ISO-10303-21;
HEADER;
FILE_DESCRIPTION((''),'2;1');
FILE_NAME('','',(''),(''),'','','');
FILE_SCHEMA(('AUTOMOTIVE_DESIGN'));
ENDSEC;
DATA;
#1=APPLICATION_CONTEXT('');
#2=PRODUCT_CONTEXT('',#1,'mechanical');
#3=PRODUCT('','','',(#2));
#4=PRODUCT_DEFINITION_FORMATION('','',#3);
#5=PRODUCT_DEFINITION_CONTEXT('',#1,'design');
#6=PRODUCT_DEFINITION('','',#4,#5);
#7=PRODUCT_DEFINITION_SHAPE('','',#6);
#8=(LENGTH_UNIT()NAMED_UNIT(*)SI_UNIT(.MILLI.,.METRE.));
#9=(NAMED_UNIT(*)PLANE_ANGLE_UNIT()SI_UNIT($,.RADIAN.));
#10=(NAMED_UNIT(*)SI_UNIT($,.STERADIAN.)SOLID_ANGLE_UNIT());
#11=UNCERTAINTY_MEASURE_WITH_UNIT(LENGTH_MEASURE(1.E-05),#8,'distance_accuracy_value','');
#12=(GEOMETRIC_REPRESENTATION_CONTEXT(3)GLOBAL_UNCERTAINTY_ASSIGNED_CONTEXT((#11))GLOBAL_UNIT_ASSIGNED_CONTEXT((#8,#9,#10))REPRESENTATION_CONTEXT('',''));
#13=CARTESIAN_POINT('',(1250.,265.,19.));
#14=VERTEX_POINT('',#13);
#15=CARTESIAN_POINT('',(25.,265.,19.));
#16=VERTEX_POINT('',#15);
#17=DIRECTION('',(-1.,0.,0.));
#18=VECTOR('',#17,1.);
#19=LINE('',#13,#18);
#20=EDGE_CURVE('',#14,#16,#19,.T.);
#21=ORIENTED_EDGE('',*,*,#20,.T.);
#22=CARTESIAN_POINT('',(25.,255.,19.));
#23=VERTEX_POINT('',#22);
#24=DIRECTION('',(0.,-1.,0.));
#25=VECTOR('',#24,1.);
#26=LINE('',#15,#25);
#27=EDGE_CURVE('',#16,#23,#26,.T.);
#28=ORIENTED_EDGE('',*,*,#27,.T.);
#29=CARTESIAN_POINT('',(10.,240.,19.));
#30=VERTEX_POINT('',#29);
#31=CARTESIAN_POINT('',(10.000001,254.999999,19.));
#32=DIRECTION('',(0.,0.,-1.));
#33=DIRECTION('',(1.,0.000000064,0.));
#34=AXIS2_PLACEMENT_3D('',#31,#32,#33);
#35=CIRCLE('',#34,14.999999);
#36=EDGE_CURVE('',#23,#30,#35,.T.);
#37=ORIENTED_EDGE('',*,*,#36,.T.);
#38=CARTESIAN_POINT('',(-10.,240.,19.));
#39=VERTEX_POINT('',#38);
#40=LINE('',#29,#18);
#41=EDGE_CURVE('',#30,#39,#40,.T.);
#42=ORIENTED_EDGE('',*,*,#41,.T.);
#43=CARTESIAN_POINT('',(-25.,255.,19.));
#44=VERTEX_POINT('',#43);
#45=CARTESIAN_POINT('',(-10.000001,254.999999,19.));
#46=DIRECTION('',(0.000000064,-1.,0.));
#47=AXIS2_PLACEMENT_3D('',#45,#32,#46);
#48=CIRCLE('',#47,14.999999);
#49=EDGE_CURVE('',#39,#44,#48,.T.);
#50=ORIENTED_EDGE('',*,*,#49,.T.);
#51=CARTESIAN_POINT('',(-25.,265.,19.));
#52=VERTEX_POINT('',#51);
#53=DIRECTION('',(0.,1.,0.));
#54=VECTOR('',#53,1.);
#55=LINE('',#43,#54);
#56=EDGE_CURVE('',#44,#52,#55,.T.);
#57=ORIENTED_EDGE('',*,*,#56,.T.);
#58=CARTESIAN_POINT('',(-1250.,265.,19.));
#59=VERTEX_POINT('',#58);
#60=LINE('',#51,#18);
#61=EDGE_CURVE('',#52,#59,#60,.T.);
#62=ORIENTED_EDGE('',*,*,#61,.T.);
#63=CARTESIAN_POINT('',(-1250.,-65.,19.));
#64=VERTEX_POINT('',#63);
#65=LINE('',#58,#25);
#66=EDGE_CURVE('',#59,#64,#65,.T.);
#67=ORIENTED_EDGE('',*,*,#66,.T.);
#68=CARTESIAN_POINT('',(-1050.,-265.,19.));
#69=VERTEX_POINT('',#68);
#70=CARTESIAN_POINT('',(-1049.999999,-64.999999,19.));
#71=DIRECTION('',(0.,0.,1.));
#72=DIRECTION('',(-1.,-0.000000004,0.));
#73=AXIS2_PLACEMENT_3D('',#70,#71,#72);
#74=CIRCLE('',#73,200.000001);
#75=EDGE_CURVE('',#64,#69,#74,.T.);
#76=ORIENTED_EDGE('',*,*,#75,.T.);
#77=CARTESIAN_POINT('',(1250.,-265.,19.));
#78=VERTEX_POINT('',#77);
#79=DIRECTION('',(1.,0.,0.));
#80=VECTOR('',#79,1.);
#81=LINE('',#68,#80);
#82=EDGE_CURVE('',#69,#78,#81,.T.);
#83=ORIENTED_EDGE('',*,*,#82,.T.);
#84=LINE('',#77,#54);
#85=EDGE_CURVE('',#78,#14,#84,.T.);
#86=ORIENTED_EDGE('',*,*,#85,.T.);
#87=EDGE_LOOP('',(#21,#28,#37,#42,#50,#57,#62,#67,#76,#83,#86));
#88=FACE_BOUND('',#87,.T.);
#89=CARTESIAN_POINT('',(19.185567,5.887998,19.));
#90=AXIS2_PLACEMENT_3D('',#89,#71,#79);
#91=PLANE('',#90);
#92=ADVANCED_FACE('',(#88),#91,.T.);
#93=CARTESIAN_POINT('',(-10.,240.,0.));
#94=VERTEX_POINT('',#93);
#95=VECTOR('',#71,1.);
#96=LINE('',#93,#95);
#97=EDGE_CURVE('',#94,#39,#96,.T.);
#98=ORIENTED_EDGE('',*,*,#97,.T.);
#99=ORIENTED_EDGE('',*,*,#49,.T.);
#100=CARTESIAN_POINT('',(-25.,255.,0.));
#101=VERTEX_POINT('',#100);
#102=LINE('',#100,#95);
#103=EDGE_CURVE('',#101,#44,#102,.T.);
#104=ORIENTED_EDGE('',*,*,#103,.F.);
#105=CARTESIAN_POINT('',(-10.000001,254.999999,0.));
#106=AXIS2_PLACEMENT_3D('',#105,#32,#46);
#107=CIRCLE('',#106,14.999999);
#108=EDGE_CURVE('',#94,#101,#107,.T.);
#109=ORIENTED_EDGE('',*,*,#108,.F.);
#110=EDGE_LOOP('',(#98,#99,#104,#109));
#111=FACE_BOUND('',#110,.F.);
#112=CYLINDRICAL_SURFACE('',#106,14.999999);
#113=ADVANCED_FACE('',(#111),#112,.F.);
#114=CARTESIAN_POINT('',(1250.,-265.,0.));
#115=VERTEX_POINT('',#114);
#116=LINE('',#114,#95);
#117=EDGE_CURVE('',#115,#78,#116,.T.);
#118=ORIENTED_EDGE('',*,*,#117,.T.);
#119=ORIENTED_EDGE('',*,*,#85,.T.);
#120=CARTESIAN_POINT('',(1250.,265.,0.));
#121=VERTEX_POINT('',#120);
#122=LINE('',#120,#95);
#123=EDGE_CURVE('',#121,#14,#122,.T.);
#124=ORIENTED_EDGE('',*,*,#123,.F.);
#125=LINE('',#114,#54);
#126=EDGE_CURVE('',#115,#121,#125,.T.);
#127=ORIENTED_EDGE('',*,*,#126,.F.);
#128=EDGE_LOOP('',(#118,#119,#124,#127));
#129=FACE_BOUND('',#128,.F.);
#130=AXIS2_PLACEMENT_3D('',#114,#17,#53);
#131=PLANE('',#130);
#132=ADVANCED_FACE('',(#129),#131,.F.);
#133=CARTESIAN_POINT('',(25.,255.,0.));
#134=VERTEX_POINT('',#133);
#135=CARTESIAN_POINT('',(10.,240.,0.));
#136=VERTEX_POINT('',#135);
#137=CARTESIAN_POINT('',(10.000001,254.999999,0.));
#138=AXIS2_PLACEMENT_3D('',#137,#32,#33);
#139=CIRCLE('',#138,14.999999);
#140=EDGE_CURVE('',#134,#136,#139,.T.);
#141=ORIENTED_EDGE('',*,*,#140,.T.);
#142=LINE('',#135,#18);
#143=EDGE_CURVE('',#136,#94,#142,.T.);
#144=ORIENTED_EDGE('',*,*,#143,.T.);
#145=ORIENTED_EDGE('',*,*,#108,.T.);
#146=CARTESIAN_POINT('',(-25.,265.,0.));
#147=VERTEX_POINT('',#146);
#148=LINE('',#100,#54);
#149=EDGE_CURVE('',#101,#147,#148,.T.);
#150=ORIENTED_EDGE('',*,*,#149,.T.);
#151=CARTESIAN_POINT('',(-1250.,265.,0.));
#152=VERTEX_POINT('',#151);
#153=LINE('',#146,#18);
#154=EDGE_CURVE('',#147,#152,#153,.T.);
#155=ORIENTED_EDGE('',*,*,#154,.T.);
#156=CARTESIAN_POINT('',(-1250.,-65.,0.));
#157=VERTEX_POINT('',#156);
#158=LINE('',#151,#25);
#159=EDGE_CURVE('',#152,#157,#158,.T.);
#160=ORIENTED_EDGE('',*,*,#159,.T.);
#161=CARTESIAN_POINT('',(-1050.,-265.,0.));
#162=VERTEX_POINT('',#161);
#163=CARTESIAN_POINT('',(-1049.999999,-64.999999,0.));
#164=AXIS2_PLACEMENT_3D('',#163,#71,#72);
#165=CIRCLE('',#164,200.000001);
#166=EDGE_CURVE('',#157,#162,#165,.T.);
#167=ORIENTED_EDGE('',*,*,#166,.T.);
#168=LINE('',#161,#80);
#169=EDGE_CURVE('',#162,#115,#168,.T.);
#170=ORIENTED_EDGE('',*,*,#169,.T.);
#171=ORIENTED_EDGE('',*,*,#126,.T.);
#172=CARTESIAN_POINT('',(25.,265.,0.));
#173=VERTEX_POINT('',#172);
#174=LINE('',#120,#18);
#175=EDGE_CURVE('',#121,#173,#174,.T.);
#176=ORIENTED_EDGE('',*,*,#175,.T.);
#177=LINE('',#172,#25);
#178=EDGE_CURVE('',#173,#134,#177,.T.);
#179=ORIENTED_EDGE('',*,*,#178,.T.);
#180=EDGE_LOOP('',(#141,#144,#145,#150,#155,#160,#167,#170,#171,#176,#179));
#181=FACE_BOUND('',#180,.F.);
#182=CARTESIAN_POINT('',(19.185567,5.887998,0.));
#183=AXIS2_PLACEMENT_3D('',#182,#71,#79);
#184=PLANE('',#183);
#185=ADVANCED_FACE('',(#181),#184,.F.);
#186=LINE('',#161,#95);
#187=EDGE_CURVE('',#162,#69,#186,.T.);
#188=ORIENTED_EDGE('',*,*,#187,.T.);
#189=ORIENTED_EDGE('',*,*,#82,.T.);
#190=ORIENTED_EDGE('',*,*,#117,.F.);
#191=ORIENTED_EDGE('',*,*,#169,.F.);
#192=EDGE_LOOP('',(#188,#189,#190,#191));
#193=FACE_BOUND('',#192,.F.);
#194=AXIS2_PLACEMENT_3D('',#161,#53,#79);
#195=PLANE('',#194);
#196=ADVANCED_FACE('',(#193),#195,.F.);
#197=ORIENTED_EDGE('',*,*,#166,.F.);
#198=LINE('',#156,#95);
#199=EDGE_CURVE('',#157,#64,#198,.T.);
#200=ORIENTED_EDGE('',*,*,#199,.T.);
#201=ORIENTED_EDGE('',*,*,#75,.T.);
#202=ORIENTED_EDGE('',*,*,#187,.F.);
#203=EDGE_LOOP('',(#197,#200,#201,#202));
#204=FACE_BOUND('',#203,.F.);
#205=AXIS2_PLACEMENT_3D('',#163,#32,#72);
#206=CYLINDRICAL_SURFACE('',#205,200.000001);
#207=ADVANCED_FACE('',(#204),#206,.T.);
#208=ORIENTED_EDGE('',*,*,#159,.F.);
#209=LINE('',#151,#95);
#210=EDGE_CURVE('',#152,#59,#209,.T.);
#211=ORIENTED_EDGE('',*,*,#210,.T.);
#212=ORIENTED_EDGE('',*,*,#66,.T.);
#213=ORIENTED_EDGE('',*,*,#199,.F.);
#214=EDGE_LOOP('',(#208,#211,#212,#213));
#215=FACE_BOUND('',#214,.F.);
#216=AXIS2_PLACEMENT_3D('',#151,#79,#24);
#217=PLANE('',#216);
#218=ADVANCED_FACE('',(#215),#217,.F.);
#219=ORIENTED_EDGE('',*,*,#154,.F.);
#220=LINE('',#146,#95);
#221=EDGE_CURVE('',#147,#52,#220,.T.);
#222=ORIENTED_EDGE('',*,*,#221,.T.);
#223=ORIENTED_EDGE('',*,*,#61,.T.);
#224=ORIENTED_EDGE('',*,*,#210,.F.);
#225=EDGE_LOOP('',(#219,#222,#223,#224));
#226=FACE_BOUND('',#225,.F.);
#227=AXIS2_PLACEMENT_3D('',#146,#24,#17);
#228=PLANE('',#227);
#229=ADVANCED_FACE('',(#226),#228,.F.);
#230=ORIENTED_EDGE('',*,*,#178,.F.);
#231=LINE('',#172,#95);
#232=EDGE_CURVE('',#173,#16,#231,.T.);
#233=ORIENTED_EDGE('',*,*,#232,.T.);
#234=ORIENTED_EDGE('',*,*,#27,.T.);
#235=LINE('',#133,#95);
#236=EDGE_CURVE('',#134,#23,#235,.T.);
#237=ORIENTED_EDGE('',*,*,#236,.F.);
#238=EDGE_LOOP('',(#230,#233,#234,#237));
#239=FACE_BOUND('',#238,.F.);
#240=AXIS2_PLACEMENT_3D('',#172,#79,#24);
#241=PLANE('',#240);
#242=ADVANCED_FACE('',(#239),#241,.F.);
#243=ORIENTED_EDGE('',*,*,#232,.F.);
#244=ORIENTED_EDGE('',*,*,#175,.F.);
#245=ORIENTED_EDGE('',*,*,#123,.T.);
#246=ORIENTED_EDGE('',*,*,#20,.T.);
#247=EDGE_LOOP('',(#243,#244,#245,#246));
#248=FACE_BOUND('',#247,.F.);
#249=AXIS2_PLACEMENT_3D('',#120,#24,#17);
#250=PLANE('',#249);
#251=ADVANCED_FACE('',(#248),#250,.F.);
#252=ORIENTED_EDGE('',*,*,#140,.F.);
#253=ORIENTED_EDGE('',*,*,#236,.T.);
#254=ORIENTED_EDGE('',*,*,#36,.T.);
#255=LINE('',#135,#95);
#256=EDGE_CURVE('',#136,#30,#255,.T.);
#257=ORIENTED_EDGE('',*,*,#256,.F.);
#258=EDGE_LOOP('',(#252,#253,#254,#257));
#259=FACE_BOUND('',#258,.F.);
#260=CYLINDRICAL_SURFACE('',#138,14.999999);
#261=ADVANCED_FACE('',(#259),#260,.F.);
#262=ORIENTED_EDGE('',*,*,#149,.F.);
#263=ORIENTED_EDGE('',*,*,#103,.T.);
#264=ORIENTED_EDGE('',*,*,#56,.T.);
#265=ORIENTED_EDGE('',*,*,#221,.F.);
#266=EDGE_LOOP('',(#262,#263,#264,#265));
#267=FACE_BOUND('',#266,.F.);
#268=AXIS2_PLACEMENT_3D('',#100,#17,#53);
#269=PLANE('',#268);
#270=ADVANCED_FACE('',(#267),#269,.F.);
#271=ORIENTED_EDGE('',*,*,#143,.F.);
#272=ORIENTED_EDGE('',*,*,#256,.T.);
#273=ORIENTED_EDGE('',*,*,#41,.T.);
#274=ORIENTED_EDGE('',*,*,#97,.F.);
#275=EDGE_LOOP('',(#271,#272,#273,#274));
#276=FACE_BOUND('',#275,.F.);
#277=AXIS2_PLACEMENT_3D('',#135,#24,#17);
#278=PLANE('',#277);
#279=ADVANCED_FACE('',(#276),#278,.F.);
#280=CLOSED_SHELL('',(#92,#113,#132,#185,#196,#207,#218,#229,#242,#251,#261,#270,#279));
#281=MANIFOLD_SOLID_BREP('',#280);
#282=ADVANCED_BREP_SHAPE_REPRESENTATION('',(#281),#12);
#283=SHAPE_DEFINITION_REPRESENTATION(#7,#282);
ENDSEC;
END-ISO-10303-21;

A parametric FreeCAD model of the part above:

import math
import FreeCAD as App
import Part
import Sketcher
Q = App.Units.Quantity

doc = App.newDocument("Part")
body = doc.addObject("PartDesign::Body", "Body")

# Sketch on XY plane
sketch1 = body.newObject("Sketcher::SketchObject", "Sketch")
sketch1.AttachmentSupport = (doc.getObject("XY_Plane"), [""])
sketch1.MapMode = "FlatFace"
sketch1.addGeometry([
    Part.LineSegment(App.Vector(-25, 265, 0), App.Vector(-1250, 265, 0)),  # 0
    Part.LineSegment(App.Vector(-1250, 265, 0), App.Vector(-1250, -65, 0)),  # 1
    Part.ArcOfCircle(Part.Circle(App.Vector(-1050, -65, 0), App.Vector(0, 0, 1), 200), math.radians(-180), math.radians(-90)),  # 2
    Part.LineSegment(App.Vector(-1050, -265, 0), App.Vector(1250, -265, 0)),  # 3
    Part.LineSegment(App.Vector(1250, -265, 0), App.Vector(1250, 265, 0)),  # 4
    Part.LineSegment(App.Vector(1250, 265, 0), App.Vector(25, 265, 0)),  # 5
    Part.LineSegment(App.Vector(25, 265, 0), App.Vector(25, 255, 0)),  # 6
    Part.ArcOfCircle(Part.Circle(App.Vector(10, 255, 0), App.Vector(0, 0, 1), 15), math.radians(-90), math.radians(0)),  # 7
    Part.LineSegment(App.Vector(10, 240, 0), App.Vector(-10, 240, 0)),  # 8
    Part.ArcOfCircle(Part.Circle(App.Vector(-10, 255, 0), App.Vector(0, 0, 1), 15), math.radians(180), math.radians(270)),  # 9
    Part.LineSegment(App.Vector(-25, 255, 0), App.Vector(-25, 265, 0)),  # 10
], False)
sketch1.addConstraint([
    Sketcher.Constraint("Coincident", 0, 2, 1, 1),
    Sketcher.Constraint("Tangent", 1, 2, 2, 1),
    Sketcher.Constraint("Tangent", 2, 2, 3, 1),
    Sketcher.Constraint("Coincident", 3, 2, 4, 1),
    Sketcher.Constraint("Coincident", 4, 2, 5, 1),
    Sketcher.Constraint("Coincident", 5, 2, 6, 1),
    Sketcher.Constraint("Tangent", 6, 2, 7, 2),
    Sketcher.Constraint("Tangent", 7, 1, 8, 1),
    Sketcher.Constraint("Tangent", 8, 2, 9, 2),
    Sketcher.Constraint("Tangent", 9, 1, 10, 1),
    Sketcher.Constraint("Coincident", 10, 2, 0, 1),
    Sketcher.Constraint("Horizontal", 0),
    Sketcher.Constraint("Vertical", 1),
    Sketcher.Constraint("Horizontal", 3),
    Sketcher.Constraint("Vertical", 4),
    Sketcher.Constraint("Horizontal", 5),
    Sketcher.Constraint("Vertical", 6),
    Sketcher.Constraint("Horizontal", 8),
    Sketcher.Constraint("Vertical", 10),
    Sketcher.Constraint("Equal", 7, 9),
    Sketcher.Constraint("Symmetric", 0, 2, 3, 2, -1, 1),
    Sketcher.Constraint("Symmetric", 5, 2, 10, 2, -2),
    Sketcher.Constraint("Radius", 2, Q("200.000001 mm")),
    Sketcher.Constraint("Radius", 7, Q("14.999999 mm")),
    Sketcher.Constraint("DistanceX", 0, 2, 0, 1, Q("1225 mm")),
    Sketcher.Constraint("DistanceX", 3, 1, 3, 2, Q("2300 mm")),
    Sketcher.Constraint("DistanceY", 1, 2, 1, 1, Q("330 mm")),
    Sketcher.Constraint("DistanceY", 6, 2, 6, 1, Q("10 mm")),
])
pad1 = body.newObject("PartDesign::Pad", "Pad")
pad1.Profile = sketch1
pad1.Length = 19

doc.recompute()
